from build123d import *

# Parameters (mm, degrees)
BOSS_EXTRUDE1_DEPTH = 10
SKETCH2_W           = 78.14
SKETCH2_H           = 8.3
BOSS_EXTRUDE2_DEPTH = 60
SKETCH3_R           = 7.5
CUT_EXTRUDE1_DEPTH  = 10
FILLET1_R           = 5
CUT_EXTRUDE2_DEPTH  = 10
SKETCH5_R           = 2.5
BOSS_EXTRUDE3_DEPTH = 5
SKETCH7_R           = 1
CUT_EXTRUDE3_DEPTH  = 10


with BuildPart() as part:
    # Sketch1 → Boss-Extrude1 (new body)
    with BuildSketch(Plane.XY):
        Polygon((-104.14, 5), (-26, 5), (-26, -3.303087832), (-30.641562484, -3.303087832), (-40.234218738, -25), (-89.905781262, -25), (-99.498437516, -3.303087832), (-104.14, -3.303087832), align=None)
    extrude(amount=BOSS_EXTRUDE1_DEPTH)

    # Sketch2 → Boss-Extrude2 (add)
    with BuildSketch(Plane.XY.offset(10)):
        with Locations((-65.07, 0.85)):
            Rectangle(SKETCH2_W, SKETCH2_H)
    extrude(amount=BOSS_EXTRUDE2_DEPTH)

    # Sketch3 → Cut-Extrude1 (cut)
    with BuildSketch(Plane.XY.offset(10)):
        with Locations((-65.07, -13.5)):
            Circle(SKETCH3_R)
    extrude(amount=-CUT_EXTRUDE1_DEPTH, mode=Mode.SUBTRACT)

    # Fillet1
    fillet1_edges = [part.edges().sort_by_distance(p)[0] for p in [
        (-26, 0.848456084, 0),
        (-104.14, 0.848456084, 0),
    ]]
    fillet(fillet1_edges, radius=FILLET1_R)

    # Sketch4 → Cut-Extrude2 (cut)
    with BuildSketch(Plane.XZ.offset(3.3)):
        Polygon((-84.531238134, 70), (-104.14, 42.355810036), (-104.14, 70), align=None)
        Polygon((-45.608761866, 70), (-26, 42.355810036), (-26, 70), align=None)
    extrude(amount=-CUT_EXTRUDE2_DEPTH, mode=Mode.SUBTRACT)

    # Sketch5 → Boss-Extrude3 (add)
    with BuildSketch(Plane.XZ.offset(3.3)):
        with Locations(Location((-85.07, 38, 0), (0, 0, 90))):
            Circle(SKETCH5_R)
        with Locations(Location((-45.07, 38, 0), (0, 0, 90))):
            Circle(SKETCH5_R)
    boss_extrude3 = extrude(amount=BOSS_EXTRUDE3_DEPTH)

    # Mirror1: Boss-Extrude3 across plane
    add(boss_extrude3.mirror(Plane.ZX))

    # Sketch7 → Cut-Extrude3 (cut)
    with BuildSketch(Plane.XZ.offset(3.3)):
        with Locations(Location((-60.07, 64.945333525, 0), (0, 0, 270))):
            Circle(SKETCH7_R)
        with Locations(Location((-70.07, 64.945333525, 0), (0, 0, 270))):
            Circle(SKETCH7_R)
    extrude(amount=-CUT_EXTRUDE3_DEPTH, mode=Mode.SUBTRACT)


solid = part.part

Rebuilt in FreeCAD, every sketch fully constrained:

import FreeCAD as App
import Part
import Sketcher


def edges_at(feature, points):
    """Names of the edges that pass closest to the given points."""
    edges = feature.Shape.Edges
    near = lambda p: min(range(len(edges)), key=lambda i: edges[i].distToShape(Part.Vertex(*p))[0])
    return sorted({f"Edge{near(p) + 1}" for p in points})

doc = App.newDocument("Part")
body = doc.addObject("PartDesign::Body", "Body")

sketch1 = doc.addObject("Sketcher::SketchObject", "Sketch")
body.addObject(sketch1)
sketch1.AttachmentSupport = (doc.XY_Plane, [""])
sketch1.MapMode = "FlatFace"
sketch1.addGeometry([
    Part.LineSegment(App.Vector(-26, 5, 0), App.Vector(-104.14, 5, 0)),
    Part.LineSegment(App.Vector(-104.14, 5, 0), App.Vector(-104.14, -3.303088, 0)),
    Part.LineSegment(App.Vector(-104.14, -3.303088, 0), App.Vector(-99.498438, -3.303088, 0)),
    Part.LineSegment(App.Vector(-99.498438, -3.303088, 0), App.Vector(-89.905781, -25, 0)),
    Part.LineSegment(App.Vector(-89.905781, -25, 0), App.Vector(-40.234219, -25, 0)),
    Part.LineSegment(App.Vector(-40.234219, -25, 0), App.Vector(-30.641562, -3.303088, 0)),
    Part.LineSegment(App.Vector(-30.641562, -3.303088, 0), App.Vector(-26, -3.303088, 0)),
    Part.LineSegment(App.Vector(-26, -3.303088, 0), App.Vector(-26, 5, 0)),
], False)
sketch1.addConstraint([
    Sketcher.Constraint("Coincident", 0, 2, 1, 1),
    Sketcher.Constraint("Coincident", 1, 2, 2, 1),
    Sketcher.Constraint("Coincident", 2, 2, 3, 1),
    Sketcher.Constraint("Coincident", 3, 2, 4, 1),
    Sketcher.Constraint("Coincident", 4, 2, 5, 1),
    Sketcher.Constraint("Coincident", 5, 2, 6, 1),
    Sketcher.Constraint("Coincident", 6, 2, 7, 1),
    Sketcher.Constraint("Coincident", 7, 2, 0, 1),
    Sketcher.Constraint("Horizontal", 0),
    Sketcher.Constraint("Vertical", 1),
    Sketcher.Constraint("Horizontal", 2),
    Sketcher.Constraint("Horizontal", 4),
    Sketcher.Constraint("Horizontal", 6),
    Sketcher.Constraint("Vertical", 7),
    Sketcher.Constraint("Horizontal", 2, 2, 5, 2),
    Sketcher.Constraint("Equal", 2, 6),
    Sketcher.Constraint("Equal", 3, 5),
    Sketcher.Constraint("DistanceY", -1, 1, 0, 2, 5.0),
    Sketcher.Constraint("DistanceY", 3, 2, -1, 1, 25.0),
    Sketcher.Constraint("DistanceX", 6, 2, -1, 1, 26.0),
    Sketcher.Constraint("DistanceX", 0, 2, 0, 1, 78.14),
    Sketcher.Constraint("Distance", 3, 23.72288),
    Sketcher.Constraint("DistanceX", 2, 1, 2, 2, 4.641562),
    Sketcher.Constraint("DistanceX", 4, 1, 4, 2, 49.671563),
])
pad1 = doc.addObject("PartDesign::Pad", "Pad")
body.addObject(pad1)
pad1.Profile = sketch1
pad1.Length = 10

sketch2 = doc.addObject("Sketcher::SketchObject", "Sketch001")
body.addObject(sketch2)
sketch2.AttachmentSupport = (doc.XY_Plane, [""])
sketch2.MapMode = "FlatFace"
sketch2.AttachmentOffset = App.Placement(App.Vector(0, 0, 10), App.Rotation())
sketch2.addGeometry([
    Part.LineSegment(App.Vector(-104.14, 5, 0), App.Vector(-104.14, -3.3, 0)),
    Part.LineSegment(App.Vector(-104.14, -3.3, 0), App.Vector(-26, -3.3, 0)),
    Part.LineSegment(App.Vector(-26, -3.3, 0), App.Vector(-26, 5, 0)),
    Part.LineSegment(App.Vector(-26, 5, 0), App.Vector(-104.14, 5, 0)),
], False)
sketch2.addConstraint([
    Sketcher.Constraint("Coincident", 0, 2, 1, 1),
    Sketcher.Constraint("Coincident", 1, 2, 2, 1),
    Sketcher.Constraint("Coincident", 2, 2, 3, 1),
    Sketcher.Constraint("Coincident", 3, 2, 0, 1),
    Sketcher.Constraint("Vertical", 0),
    Sketcher.Constraint("Horizontal", 1),
    Sketcher.Constraint("Vertical", 2),
    Sketcher.Constraint("Horizontal", 3),
    Sketcher.Constraint("DistanceY", 0, 2, 0, 1, 8.3),
    Sketcher.Constraint("DistanceX", 1, 2, -1, 1, 26.0),
    Sketcher.Constraint("DistanceY", -1, 1, 2, 2, 5.0),
    Sketcher.Constraint("DistanceX", 1, 1, 1, 2, 78.14),
])
pad2 = doc.addObject("PartDesign::Pad", "Pad001")
body.addObject(pad2)
pad2.Profile = sketch2
pad2.Length = 60

sketch3 = doc.addObject("Sketcher::SketchObject", "Sketch002")
body.addObject(sketch3)
sketch3.AttachmentSupport = (doc.XY_Plane, [""])
sketch3.MapMode = "FlatFace"
sketch3.AttachmentOffset = App.Placement(App.Vector(0, 0, 10), App.Rotation())
sketch3.addGeometry(Part.Circle(App.Vector(-65.07, -13.5, 0), App.Vector(0, 0, 1), 7.5), False)
sketch3.addConstraint([
    Sketcher.Constraint("Diameter", 0, 15.0),
    Sketcher.Constraint("DistanceY", 0, 3, -1, 1, 13.5),
    Sketcher.Constraint("DistanceX", 0, 3, -1, 1, 65.07),
])
pocket1 = doc.addObject("PartDesign::Pocket", "Pocket")
body.addObject(pocket1)
pocket1.Profile = sketch3
pocket1.Length = 10
doc.recompute()

fillet = doc.addObject("PartDesign::Fillet", "Fillet")
body.addObject(fillet)
fillet.Base = (pocket1, edges_at(pocket1, [(-26, 0.848, 0), (-104.14, 0.848, 0)]))
fillet.Radius = 5

sketch4 = doc.addObject("Sketcher::SketchObject", "Sketch003")
body.addObject(sketch4)
sketch4.AttachmentSupport = (doc.XZ_Plane, [""])
sketch4.MapMode = "FlatFace"
sketch4.AttachmentOffset = App.Placement(App.Vector(0, 0, 3.3), App.Rotation())
sketch4.addGeometry([
    Part.LineSegment(App.Vector(-104.14, 42.35581, 0), App.Vector(-84.531238, 70, 0)),
    Part.LineSegment(App.Vector(-84.531238, 70, 0), App.Vector(-104.14, 70, 0)),
    Part.LineSegment(App.Vector(-104.14, 70, 0), App.Vector(-104.14, 42.35581, 0)),
    Part.LineSegment(App.Vector(-45.608762, 70, 0), App.Vector(-26, 42.35581, 0)),
    Part.LineSegment(App.Vector(-26, 42.35581, 0), App.Vector(-26, 70, 0)),
    Part.LineSegment(App.Vector(-26, 70, 0), App.Vector(-45.608762, 70, 0)),
], False)
sketch4.addConstraint([
    Sketcher.Constraint("Coincident", 0, 2, 1, 1),
    Sketcher.Constraint("Coincident", 1, 2, 2, 1),
    Sketcher.Constraint("Coincident", 2, 2, 0, 1),
    Sketcher.Constraint("Coincident", 3, 2, 4, 1),
    Sketcher.Constraint("Coincident", 4, 2, 5, 1),
    Sketcher.Constraint("Coincident", 5, 2, 3, 1),
    Sketcher.Constraint("Horizontal", 1),
    Sketcher.Constraint("Vertical", 2),
    Sketcher.Constraint("Vertical", 4),
    Sketcher.Constraint("Horizontal", 5),
    Sketcher.Constraint("Horizontal", 2, 2, 3, 2),
    Sketcher.Constraint("Horizontal", 1, 2, 4, 2),
    Sketcher.Constraint("Equal", 1, 5),
    Sketcher.Constraint("DistanceY", -1, 1, 0, 2, 70.0),
    Sketcher.Constraint("DistanceX", 3, 2, -1, 1, 26.0),
    Sketcher.Constraint("DistanceX", 1, 2, -1, 1, 104.14),
    Sketcher.Constraint("DistanceX", 1, 2, 1, 1, 19.608762),
    Sketcher.Constraint("DistanceY", 2, 2, 2, 1, 27.64419),
])
pocket2 = doc.addObject("PartDesign::Pocket", "Pocket001")
body.addObject(pocket2)
pocket2.Profile = sketch4
pocket2.Length = 10

sketch5 = doc.addObject("Sketcher::SketchObject", "Sketch004")
body.addObject(sketch5)
sketch5.AttachmentSupport = (doc.XZ_Plane, [""])
sketch5.MapMode = "FlatFace"
sketch5.AttachmentOffset = App.Placement(App.Vector(0, 0, 3.3), App.Rotation())
sketch5.addGeometry([
    Part.Circle(App.Vector(-85.07, 38, 0), App.Vector(0, 0, 1), 2.5),
    Part.Circle(App.Vector(-45.07, 38, 0), App.Vector(0, 0, 1), 2.5),
], False)
sketch5.addConstraint([
    Sketcher.Constraint("Equal", 0, 1),
    Sketcher.Constraint("Horizontal", 0, 3, 1, 3),
    Sketcher.Constraint("Diameter", 0, 5.0),
    Sketcher.Constraint("DistanceY", -1, 1, 0, 3, 38.0),
    Sketcher.Constraint("DistanceX", 0, 3, 1, 3, 40.0),
    Sketcher.Constraint("DistanceX", 0, 3, -1, 1, 85.07),
])
pad3 = doc.addObject("PartDesign::Pad", "Pad002")
body.addObject(pad3)
pad3.Profile = sketch5
pad3.Length = 5
doc.recompute()

mirrored = doc.addObject("PartDesign::Mirrored", "Mirrored")
body.addObject(mirrored)
mirrored.Originals = [pad3]
mirrored.MirrorPlane = (doc.XZ_Plane, [""])
body.Tip = mirrored

sketch6 = doc.addObject("Sketcher::SketchObject", "Sketch005")
body.addObject(sketch6)
sketch6.AttachmentSupport = (doc.XZ_Plane, [""])
sketch6.MapMode = "FlatFace"
sketch6.AttachmentOffset = App.Placement(App.Vector(0, 0, 3.3), App.Rotation())
sketch6.addGeometry([
    Part.Circle(App.Vector(-60.07, 64.945334, 0), App.Vector(0, 0, 1), 1),
    Part.Circle(App.Vector(-70.07, 64.945334, 0), App.Vector(0, 0, 1), 1),
], False)
sketch6.addConstraint([
    Sketcher.Constraint("Equal", 0, 1),
    Sketcher.Constraint("Horizontal", 0, 3, 1, 3),
    Sketcher.Constraint("Diameter", 0, 2.0),
    Sketcher.Constraint("DistanceX", 1, 3, 0, 3, 10.0),
    Sketcher.Constraint("DistanceX", 0, 3, -1, 1, 60.07),
    Sketcher.Constraint("DistanceY", -1, 1, 0, 3, 64.945334),
])
pocket3 = doc.addObject("PartDesign::Pocket", "Pocket002")
body.addObject(pocket3)
pocket3.Profile = sketch6
pocket3.Length = 10

doc.recompute()
